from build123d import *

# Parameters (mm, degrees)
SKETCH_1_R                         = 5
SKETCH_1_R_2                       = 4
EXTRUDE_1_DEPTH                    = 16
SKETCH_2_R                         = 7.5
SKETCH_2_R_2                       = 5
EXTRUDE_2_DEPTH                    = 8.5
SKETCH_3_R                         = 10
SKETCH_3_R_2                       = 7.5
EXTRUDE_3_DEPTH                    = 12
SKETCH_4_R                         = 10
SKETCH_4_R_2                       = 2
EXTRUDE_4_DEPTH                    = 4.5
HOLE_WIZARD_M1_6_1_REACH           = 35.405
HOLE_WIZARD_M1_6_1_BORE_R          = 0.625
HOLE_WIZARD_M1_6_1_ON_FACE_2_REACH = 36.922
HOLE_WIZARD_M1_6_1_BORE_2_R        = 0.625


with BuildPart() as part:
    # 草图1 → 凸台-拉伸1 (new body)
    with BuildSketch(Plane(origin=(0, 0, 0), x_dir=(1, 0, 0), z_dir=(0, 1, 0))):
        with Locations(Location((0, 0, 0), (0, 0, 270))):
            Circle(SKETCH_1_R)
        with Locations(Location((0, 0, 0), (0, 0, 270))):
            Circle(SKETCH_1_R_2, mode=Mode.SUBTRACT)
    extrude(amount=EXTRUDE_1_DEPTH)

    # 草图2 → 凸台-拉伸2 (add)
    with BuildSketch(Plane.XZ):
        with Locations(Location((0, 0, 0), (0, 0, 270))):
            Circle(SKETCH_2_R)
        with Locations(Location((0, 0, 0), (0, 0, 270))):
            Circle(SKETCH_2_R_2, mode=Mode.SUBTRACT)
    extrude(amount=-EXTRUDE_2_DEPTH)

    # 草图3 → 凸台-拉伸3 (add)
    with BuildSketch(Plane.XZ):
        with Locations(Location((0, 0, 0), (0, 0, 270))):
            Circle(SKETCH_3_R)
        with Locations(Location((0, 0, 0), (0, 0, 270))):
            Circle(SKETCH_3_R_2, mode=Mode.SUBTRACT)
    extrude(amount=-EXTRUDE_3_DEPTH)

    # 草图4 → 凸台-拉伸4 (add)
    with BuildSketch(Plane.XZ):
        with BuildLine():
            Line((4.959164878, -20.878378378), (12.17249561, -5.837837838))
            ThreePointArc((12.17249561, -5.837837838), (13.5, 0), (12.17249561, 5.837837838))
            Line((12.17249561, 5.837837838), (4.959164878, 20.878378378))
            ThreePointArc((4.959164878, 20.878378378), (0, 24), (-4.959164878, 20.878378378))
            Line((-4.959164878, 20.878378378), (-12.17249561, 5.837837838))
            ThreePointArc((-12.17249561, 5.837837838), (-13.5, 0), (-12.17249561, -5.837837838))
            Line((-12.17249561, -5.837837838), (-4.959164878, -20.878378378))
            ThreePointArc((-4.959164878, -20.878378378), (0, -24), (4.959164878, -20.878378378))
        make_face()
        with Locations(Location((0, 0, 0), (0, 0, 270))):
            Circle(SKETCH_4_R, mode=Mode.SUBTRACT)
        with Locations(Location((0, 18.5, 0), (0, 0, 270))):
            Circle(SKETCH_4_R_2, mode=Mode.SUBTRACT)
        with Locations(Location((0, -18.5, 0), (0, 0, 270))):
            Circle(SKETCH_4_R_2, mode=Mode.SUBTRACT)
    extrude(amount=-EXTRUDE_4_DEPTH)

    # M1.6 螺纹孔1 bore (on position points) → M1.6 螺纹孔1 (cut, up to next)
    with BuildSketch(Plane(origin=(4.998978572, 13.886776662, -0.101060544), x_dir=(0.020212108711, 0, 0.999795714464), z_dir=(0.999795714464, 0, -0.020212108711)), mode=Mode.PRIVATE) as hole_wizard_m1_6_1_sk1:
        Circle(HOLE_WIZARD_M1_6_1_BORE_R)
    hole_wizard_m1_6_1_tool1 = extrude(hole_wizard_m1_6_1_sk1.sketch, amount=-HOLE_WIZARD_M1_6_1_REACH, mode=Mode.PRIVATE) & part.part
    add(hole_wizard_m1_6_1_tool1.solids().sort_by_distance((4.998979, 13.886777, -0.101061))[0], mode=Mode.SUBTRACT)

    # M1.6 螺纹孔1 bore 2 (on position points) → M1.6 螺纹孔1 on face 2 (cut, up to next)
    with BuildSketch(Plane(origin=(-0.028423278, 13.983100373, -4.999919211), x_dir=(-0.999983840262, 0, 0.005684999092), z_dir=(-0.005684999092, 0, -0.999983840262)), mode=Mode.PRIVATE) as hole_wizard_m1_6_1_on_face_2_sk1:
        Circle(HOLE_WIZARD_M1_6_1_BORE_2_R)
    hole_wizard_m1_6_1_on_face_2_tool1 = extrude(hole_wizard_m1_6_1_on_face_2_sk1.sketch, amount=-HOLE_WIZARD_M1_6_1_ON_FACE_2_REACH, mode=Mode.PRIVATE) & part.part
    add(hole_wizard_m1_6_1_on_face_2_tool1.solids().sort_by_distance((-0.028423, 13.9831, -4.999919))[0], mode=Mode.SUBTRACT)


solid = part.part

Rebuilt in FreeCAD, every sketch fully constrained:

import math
import FreeCAD as App
import Part
import Sketcher
from FreeCAD import Vector
Q = App.Units.Quantity

doc = App.newDocument("Part")
body = doc.addObject("PartDesign::Body", "Body")

# Sketch on XZ plane
sketch1 = body.newObject("Sketcher::SketchObject", "Sketch")
sketch1.AttachmentSupport = (doc.getObject("XZ_Plane"), [""])
sketch1.MapMode = "FlatFace"
sketch1.addGeometry(Part.Circle(Vector(0, 0, 0), Vector(0, 0, 1), 5), False)
sketch1.addGeometry(Part.Circle(Vector(0, 0, 0), Vector(0, 0, 1), 4), False)
sketch1.addConstraint(Sketcher.Constraint("Coincident", 0, 3, -1, 1))
sketch1.addConstraint(Sketcher.Constraint("Coincident", 1, 3, -1, 1))
sketch1.addConstraint(Sketcher.Constraint("Diameter", 0, Q("10 mm")))
sketch1.addConstraint(Sketcher.Constraint("Diameter", 1, Q("8 mm")))
pad1 = body.newObject("PartDesign::Pad", "Pad")
pad1.Profile = sketch1
pad1.Length = 16
pad1.Reversed = True

# Sketch on XZ plane
sketch2 = body.newObject("Sketcher::SketchObject", "Sketch001")
sketch2.AttachmentSupport = (doc.getObject("XZ_Plane"), [""])
sketch2.MapMode = "FlatFace"
sketch2.addGeometry(Part.Circle(Vector(0, 0, 0), Vector(0, 0, 1), 8), False)
sketch2.addGeometry(Part.Circle(Vector(0, 0, 0), Vector(0, 0, 1), 5), False)
sketch2.addConstraint(Sketcher.Constraint("Coincident", 0, 3, -1, 1))
sketch2.addConstraint(Sketcher.Constraint("Coincident", 1, 3, -1, 1))
sketch2.addConstraint(Sketcher.Constraint("Diameter", 0, Q("15 mm")))
sketch2.addConstraint(Sketcher.Constraint("Diameter", 1, Q("10 mm")))
pad2 = body.newObject("PartDesign::Pad", "Pad001")
pad2.Profile = sketch2
pad2.Length = 8.5
pad2.Reversed = True

# Sketch on XZ plane
sketch3 = body.newObject("Sketcher::SketchObject", "Sketch002")
sketch3.AttachmentSupport = (doc.getObject("XZ_Plane"), [""])
sketch3.MapMode = "FlatFace"
sketch3.addGeometry(Part.Circle(Vector(0, 0, 0), Vector(0, 0, 1), 10), False)
sketch3.addGeometry(Part.Circle(Vector(0, 0, 0), Vector(0, 0, 1), 8), False)
sketch3.addConstraint(Sketcher.Constraint("Coincident", 0, 3, -1, 1))
sketch3.addConstraint(Sketcher.Constraint("Coincident", 1, 3, -1, 1))
sketch3.addConstraint(Sketcher.Constraint("Diameter", 0, Q("20 mm")))
sketch3.addConstraint(Sketcher.Constraint("Diameter", 1, Q("15 mm")))
pad3 = body.newObject("PartDesign::Pad", "Pad002")
pad3.Profile = sketch3
pad3.Length = 12
pad3.Reversed = True

# Sketch on XZ plane
sketch4 = body.newObject("Sketcher::SketchObject", "Sketch003")
sketch4.AttachmentSupport = (doc.getObject("XZ_Plane"), [""])
sketch4.MapMode = "FlatFace"
sketch4.addGeometry(Part.LineSegment(Vector(5, -20.9, 0), Vector(12.2, -5.8, 0)), False)
sketch4.addGeometry(Part.ArcOfCircle(Part.Circle(Vector(0, 0, 0), Vector(0, 0, 1), 13.5), math.radians(-26), math.radians(26)), False)
sketch4.addGeometry(Part.LineSegment(Vector(12.2, 5.8, 0), Vector(5, 20.9, 0)), False)
sketch4.addGeometry(Part.ArcOfCircle(Part.Circle(Vector(0, 18.5, 0), Vector(0, 0, 1), 5.5), math.radians(26), math.radians(154)), False)
sketch4.addGeometry(Part.LineSegment(Vector(-5, 20.9, 0), Vector(-12.2, 5.8, 0)), False)
sketch4.addGeometry(Part.ArcOfCircle(Part.Circle(Vector(0, 0, 0), Vector(0, 0, 1), 13.5), math.radians(154), math.radians(206)), False)
sketch4.addGeometry(Part.LineSegment(Vector(-12.2, -5.8, 0), Vector(-5, -20.9, 0)), False)
sketch4.addGeometry(Part.ArcOfCircle(Part.Circle(Vector(0, -18.5, 0), Vector(0, 0, 1), 5.5), math.radians(-154), math.radians(-26)), False)
sketch4.addGeometry(Part.Circle(Vector(0, -18.5, 0), Vector(0, 0, 1), 2), False)
sketch4.addGeometry(Part.Circle(Vector(0, 0, 0), Vector(0, 0, 1), 10), False)
sketch4.addGeometry(Part.Circle(Vector(0, 18.5, 0), Vector(0, 0, 1), 2), False)
sketch4.addConstraint(Sketcher.Constraint("Tangent", 0, 2, 1, 1))
sketch4.addConstraint(Sketcher.Constraint("Tangent", 1, 2, 2, 1))
sketch4.addConstraint(Sketcher.Constraint("Tangent", 2, 2, 3, 1))
sketch4.addConstraint(Sketcher.Constraint("Tangent", 3, 2, 4, 1))
sketch4.addConstraint(Sketcher.Constraint("Tangent", 4, 2, 5, 1))
sketch4.addConstraint(Sketcher.Constraint("Tangent", 5, 2, 6, 1))
sketch4.addConstraint(Sketcher.Constraint("Tangent", 6, 2, 7, 1))
sketch4.addConstraint(Sketcher.Constraint("Tangent", 7, 2, 0, 1))
sketch4.addConstraint(Sketcher.Constraint("Coincident", 1, 3, -1, 1))
sketch4.addConstraint(Sketcher.Constraint("Coincident", 5, 3, -1, 1))
sketch4.addConstraint(Sketcher.Constraint("Coincident", 9, 3, -1, 1))
sketch4.addConstraint(Sketcher.Constraint("Coincident", 8, 3, 7, 3))
sketch4.addConstraint(Sketcher.Constraint("Coincident", 10, 3, 3, 3))
sketch4.addConstraint(Sketcher.Constraint("Equal", 1, 5))
sketch4.addConstraint(Sketcher.Constraint("Equal", 3, 7))
sketch4.addConstraint(Sketcher.Constraint("Equal", 8, 10))
sketch4.addConstraint(Sketcher.Constraint("Symmetric", 3, 3, 7, 3, -1, 1))
sketch4.addConstraint(Sketcher.Constraint("PointOnObject", 3, 3, -2))
sketch4.addConstraint(Sketcher.Constraint("Diameter", 8, Q("4 mm")))
sketch4.addConstraint(Sketcher.Constraint("Diameter", 9, Q("20 mm")))
sketch4.addConstraint(Sketcher.Constraint("Radius", 1, Q("13.5 mm")))
sketch4.addConstraint(Sketcher.Constraint("Radius", 3, Q("5.5 mm")))
sketch4.addConstraint(Sketcher.Constraint("DistanceY", 7, 3, 3, 3, Q("37 mm")))
pad4 = body.newObject("PartDesign::Pad", "Pad003")
pad4.Profile = sketch4
pad4.Length = 4.5
pad4.Reversed = True

# Sketch on an angled plane
sketch5 = body.newObject("Sketcher::SketchObject", "Sketch004")
sketch5.Placement = App.Placement(Vector(4.998979, 13.886777, -0.101061), App.Rotation(Vector(0.020212109, 0, 0.999795714), Vector(0, -0.999999999, 0), Vector(0.999795714, 0, -0.020212109), "ZXY"))
sketch5.addGeometry(Part.Circle(Vector(0, 0, 0), Vector(0, 0, 1), 0.6), False)
sketch5.addConstraint(Sketcher.Constraint("Coincident", 0, 3, -1, 1))
sketch5.addConstraint(Sketcher.Constraint("Diameter", 0, Q("1.25 mm")))
pocket1 = body.newObject("PartDesign::Pocket", "Pocket")
pocket1.Profile = sketch5
pocket1.Length = 1.04913

# Sketch on an angled plane
sketch6 = body.newObject("Sketcher::SketchObject", "Sketch005")
sketch6.Placement = App.Placement(Vector(-0.028423, 13.9831, -4.999919), App.Rotation(Vector(-0.99998384, 0, 0.005684999), Vector(0, 0.999999999, 0), Vector(-0.005684999, 0, -0.99998384), "ZXY"))
sketch6.addGeometry(Part.Circle(Vector(0, 0, 0), Vector(0, 0, 1), 0.6), False)
sketch6.addConstraint(Sketcher.Constraint("Coincident", 0, 3, -1, 1))
sketch6.addConstraint(Sketcher.Constraint("Diameter", 0, Q("1.25 mm")))
pocket2 = body.newObject("PartDesign::Pocket", "Pocket001")
pocket2.Profile = sketch6
pocket2.Type = "UpToFirst"

doc.recompute()
